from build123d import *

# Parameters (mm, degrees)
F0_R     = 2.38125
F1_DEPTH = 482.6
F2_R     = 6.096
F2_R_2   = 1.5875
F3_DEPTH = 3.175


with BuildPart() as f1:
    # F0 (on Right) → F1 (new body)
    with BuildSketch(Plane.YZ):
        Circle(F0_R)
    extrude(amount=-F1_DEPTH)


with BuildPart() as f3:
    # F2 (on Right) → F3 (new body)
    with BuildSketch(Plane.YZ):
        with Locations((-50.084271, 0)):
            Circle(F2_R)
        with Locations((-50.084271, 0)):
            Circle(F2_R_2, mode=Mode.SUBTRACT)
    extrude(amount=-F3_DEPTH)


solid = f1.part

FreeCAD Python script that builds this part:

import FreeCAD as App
import Part
import Sketcher

V = App.Vector
Q = App.Units.Quantity

doc = App.newDocument("Part")
params = doc.addObject("Spreadsheet::Sheet", "Params")
for row, (alias, value) in enumerate([
    ("sketch1_diameter", "0.1875 in"),
    ("pad1_length", "19 in"),
    ("sketch2_diameter", "0.48 in"),
    ("sketch2_diameter2", "0.125 in"),
    ("pad2_length", "0.125 in"),
], start=1):
    params.set(f"A{row}", alias)
    params.set(f"B{row}", "=" + value)
    params.setAlias(f"B{row}", alias)

body = doc.addObject("PartDesign::Body", "Body")

# Sketch on YZ plane
sketch1 = doc.addObject("Sketcher::SketchObject", "Sketch")
body.addObject(sketch1)
sketch1.AttachmentSupport = (doc.YZ_Plane, [""])
sketch1.MapMode = "FlatFace"
sketch1.addGeometry(Part.Circle(V(0, 0, 0), V(0, 0, 1), 2.4), False)
sketch1.addConstraint([
    Sketcher.Constraint("Coincident", 0, 3, -1, 1),
    Sketcher.Constraint("Diameter", 0, Q("0.1875 in")),
])
sketch1.setExpression("Constraints[1]", "Params.sketch1_diameter")
pad1 = doc.addObject("PartDesign::Pad", "Pad")
body.addObject(pad1)
pad1.Profile = sketch1
pad1.setExpression("Length", "Params.pad1_length")
pad1.Reversed = True
body2 = doc.addObject("PartDesign::Body", "Body001")

# Sketch on YZ plane
sketch2 = doc.addObject("Sketcher::SketchObject", "Sketch001")
body2.addObject(sketch2)
sketch2.AttachmentSupport = (doc.getObject("YZ_Plane001"), [""])
sketch2.MapMode = "FlatFace"
sketch2.addGeometry([
    Part.Circle(V(-50.1, 0, 0), V(0, 0, 1), 6.1),
    Part.Circle(V(-50.1, 0, 0), V(0, 0, 1), 1.6),
], False)
sketch2.addConstraint([
    Sketcher.Constraint("Coincident", 1, 3, 0, 3),
    Sketcher.Constraint("PointOnObject", 0, 3, -1),
    Sketcher.Constraint("Diameter", 0, Q("0.48 in")),
    Sketcher.Constraint("Diameter", 1, Q("0.125 in")),
    Sketcher.Constraint("DistanceX", 0, 3, -1, 1, 50.084271),
])
sketch2.setExpression("Constraints[2]", "Params.sketch2_diameter")
sketch2.setExpression("Constraints[3]", "Params.sketch2_diameter2")
pad2 = doc.addObject("PartDesign::Pad", "Pad001")
body2.addObject(pad2)
pad2.Profile = sketch2
pad2.setExpression("Length", "Params.pad2_length")
pad2.Reversed = True
body2.Visibility = False

doc.recompute()
